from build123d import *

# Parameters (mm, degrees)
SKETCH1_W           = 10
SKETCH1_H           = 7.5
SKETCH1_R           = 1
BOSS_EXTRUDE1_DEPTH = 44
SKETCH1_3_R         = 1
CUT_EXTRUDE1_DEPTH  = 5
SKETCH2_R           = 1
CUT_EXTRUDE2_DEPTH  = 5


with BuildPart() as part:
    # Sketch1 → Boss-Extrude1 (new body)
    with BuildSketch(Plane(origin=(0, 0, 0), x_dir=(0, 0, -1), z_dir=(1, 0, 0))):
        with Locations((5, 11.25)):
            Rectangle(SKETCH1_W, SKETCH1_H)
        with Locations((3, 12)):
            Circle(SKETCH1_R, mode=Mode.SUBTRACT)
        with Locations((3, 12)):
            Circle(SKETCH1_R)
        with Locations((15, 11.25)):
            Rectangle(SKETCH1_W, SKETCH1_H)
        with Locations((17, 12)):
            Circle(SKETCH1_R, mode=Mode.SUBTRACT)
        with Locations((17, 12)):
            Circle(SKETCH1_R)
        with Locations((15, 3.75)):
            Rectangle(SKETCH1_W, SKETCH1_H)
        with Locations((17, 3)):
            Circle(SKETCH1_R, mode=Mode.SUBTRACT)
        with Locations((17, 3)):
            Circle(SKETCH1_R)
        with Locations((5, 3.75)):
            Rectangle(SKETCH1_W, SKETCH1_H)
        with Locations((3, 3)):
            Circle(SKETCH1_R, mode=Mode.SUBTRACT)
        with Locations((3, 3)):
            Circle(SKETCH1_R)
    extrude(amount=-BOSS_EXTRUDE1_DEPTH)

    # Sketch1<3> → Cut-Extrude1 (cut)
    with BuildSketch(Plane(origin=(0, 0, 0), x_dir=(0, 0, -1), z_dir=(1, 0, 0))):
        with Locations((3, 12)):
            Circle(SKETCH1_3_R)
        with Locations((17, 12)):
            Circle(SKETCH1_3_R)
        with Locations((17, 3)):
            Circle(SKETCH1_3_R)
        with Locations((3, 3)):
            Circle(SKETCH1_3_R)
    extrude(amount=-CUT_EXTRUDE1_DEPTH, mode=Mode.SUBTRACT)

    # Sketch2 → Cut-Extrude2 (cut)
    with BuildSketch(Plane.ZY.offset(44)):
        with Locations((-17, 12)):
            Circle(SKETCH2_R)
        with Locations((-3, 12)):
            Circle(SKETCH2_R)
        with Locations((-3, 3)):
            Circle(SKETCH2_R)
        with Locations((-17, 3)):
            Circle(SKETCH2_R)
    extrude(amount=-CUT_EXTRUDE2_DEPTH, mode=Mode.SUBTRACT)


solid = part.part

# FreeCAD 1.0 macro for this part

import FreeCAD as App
import Part
import Sketcher
from FreeCAD import Vector
Q = App.Units.Quantity


def add_polygon(sketch, points):
    """Adds a closed chain of lines whose ends are joined by coincident constraints."""
    first, n = sketch.GeometryCount, len(points)
    for a, b in zip(points, points[1:] + points[:1]):
        sketch.addGeometry(Part.LineSegment(App.Vector(*a, 0), App.Vector(*b, 0)), False)
    for i in range(n):
        sketch.addConstraint(Sketcher.Constraint("Coincident", first + i, 2, first + (i + 1) % n, 1))

doc = App.newDocument("Part")
body = doc.addObject("PartDesign::Body", "Body")

sketch1 = doc.addObject("Sketcher::SketchObject", "Sketch")
body.addObject(sketch1)
sketch1.AttachmentSupport = (doc.YZ_Plane, [""])
sketch1.MapMode = "FlatFace"
add_polygon(sketch1, [(15, 0), (0, 0), (0, -20), (15, -20)])
sketch1.addConstraint([
    Sketcher.Constraint("Horizontal", 0),
    Sketcher.Constraint("Vertical", 1),
    Sketcher.Constraint("Horizontal", 2),
    Sketcher.Constraint("Vertical", 3),
    Sketcher.Constraint("Coincident", 0, 2, -1, 1),
    Sketcher.Constraint("DistanceX", 0, 2, 0, 1, Q("15 mm")),
    Sketcher.Constraint("DistanceY", 1, 2, 1, 1, Q("20 mm")),
])
pad1 = doc.addObject("PartDesign::Pad", "Pad")
body.addObject(pad1)
pad1.Profile = sketch1
pad1.Length = 44
pad1.Reversed = True

sketch2 = doc.addObject("Sketcher::SketchObject", "Sketch001")
body.addObject(sketch2)
sketch2.AttachmentSupport = (doc.YZ_Plane, [""])
sketch2.MapMode = "FlatFace"
sketch2.addGeometry([
    Part.Circle(Vector(12, -3, 0), Vector(0, 0, 1), 1),
    Part.Circle(Vector(12, -17, 0), Vector(0, 0, 1), 1),
    Part.Circle(Vector(3, -17, 0), Vector(0, 0, 1), 1),
    Part.Circle(Vector(3, -3, 0), Vector(0, 0, 1), 1),
], False)
sketch2.addConstraint([
    Sketcher.Constraint("Equal", 0, 1),
    Sketcher.Constraint("Equal", 1, 2),
    Sketcher.Constraint("Equal", 2, 3),
    Sketcher.Constraint("Horizontal", 1, 3, 2, 3),
    Sketcher.Constraint("Horizontal", 0, 3, 3, 3),
    Sketcher.Constraint("Vertical", 0, 3, 1, 3),
    Sketcher.Constraint("Vertical", 2, 3, 3, 3),
    Sketcher.Constraint("Diameter", 0, Q("2 mm")),
    Sketcher.Constraint("DistanceX", -1, 1, 0, 3, Q("12 mm")),
    Sketcher.Constraint("DistanceY", 0, 3, -1, 1, Q("3 mm")),
    Sketcher.Constraint("DistanceY", 1, 3, -1, 1, Q("17 mm")),
    Sketcher.Constraint("DistanceX", -1, 1, 2, 3, Q("3 mm")),
])
pocket1 = doc.addObject("PartDesign::Pocket", "Pocket")
body.addObject(pocket1)
pocket1.Profile = sketch2
pocket1.Length = 5

sketch3 = doc.addObject("Sketcher::SketchObject", "Sketch002")
body.addObject(sketch3)
sketch3.AttachmentSupport = (doc.YZ_Plane, [""])
sketch3.MapMode = "FlatFace"
sketch3.AttachmentOffset = App.Placement(Vector(0, 0, -44), App.Rotation())
sketch3.addGeometry([
    Part.Circle(Vector(12, -17, 0), Vector(0, 0, 1), 1),
    Part.Circle(Vector(12, -3, 0), Vector(0, 0, 1), 1),
    Part.Circle(Vector(3, -3, 0), Vector(0, 0, 1), 1),
    Part.Circle(Vector(3, -17, 0), Vector(0, 0, 1), 1),
], False)
sketch3.addConstraint([
    Sketcher.Constraint("Equal", 0, 1),
    Sketcher.Constraint("Equal", 1, 2),
    Sketcher.Constraint("Equal", 2, 3),
    Sketcher.Constraint("Horizontal", 1, 3, 2, 3),
    Sketcher.Constraint("Horizontal", 0, 3, 3, 3),
    Sketcher.Constraint("Vertical", 0, 3, 1, 3),
    Sketcher.Constraint("Vertical", 2, 3, 3, 3),
    Sketcher.Constraint("Diameter", 0, Q("2 mm")),
    Sketcher.Constraint("DistanceX", -1, 1, 0, 3, Q("12 mm")),
    Sketcher.Constraint("DistanceY", 0, 3, -1, 1, Q("17 mm")),
    Sketcher.Constraint("DistanceY", 1, 3, -1, 1, Q("3 mm")),
    Sketcher.Constraint("DistanceX", -1, 1, 2, 3, Q("3 mm")),
])
pocket2 = doc.addObject("PartDesign::Pocket", "Pocket001")
body.addObject(pocket2)
pocket2.Profile = sketch3
pocket2.Length = 5
pocket2.Reversed = True

doc.recompute()
